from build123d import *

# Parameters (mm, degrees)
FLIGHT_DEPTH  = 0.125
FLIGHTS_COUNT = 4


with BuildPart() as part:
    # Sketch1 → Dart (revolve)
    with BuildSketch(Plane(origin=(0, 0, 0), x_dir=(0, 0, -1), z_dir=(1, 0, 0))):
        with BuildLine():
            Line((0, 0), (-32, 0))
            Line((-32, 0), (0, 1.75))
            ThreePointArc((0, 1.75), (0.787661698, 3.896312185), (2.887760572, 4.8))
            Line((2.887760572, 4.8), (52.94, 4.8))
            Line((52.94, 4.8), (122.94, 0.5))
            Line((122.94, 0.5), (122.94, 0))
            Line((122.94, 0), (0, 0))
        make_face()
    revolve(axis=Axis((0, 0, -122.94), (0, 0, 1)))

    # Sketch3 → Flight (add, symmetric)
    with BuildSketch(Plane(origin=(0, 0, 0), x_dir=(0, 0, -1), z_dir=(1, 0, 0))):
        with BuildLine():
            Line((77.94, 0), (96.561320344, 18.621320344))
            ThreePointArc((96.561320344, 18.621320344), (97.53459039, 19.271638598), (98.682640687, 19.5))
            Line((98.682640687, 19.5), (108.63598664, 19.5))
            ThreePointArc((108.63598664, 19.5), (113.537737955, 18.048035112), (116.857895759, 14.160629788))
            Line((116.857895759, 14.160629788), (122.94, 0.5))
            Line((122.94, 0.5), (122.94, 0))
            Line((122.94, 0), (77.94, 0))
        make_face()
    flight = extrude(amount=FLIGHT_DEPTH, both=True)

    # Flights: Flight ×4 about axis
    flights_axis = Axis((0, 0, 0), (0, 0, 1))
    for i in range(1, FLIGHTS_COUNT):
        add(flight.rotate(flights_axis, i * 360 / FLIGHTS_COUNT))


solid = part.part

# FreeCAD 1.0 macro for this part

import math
import FreeCAD as App
import Part
import Sketcher

V = App.Vector
Q = App.Units.Quantity

doc = App.newDocument("Part")
body = doc.addObject("PartDesign::Body", "Body")

# Sketch on YZ plane
sketch1 = doc.addObject("Sketcher::SketchObject", "Sketch")
body.addObject(sketch1)
sketch1.AttachmentSupport = (doc.YZ_Plane, [""])
sketch1.MapMode = "FlatFace"
sketch1.addGeometry([
    Part.LineSegment(V(1.8, 0, 0), V(0, 32, 0)),  # 0
    Part.LineSegment(V(0, 32, 0), V(0, -122.9, 0)),  # 1
    Part.LineSegment(V(0, -122.9, 0), V(0.5, -122.9, 0)),  # 2
    Part.LineSegment(V(0.5, -122.9, 0), V(4.8, -52.9, 0)),  # 3
    Part.LineSegment(V(4.8, -52.9, 0), V(4.8, -2.9, 0)),  # 4
    Part.ArcOfCircle(Part.Circle(V(1.9, -2.9, 0), V(0, 0, 1), 2.9), math.radians(0), math.radians(93)),  # 5
], False)
sketch1.addConstraint([
    Sketcher.Constraint("Coincident", 0, 2, 1, 1),
    Sketcher.Constraint("Coincident", 1, 2, 2, 1),
    Sketcher.Constraint("Coincident", 2, 2, 3, 1),
    Sketcher.Constraint("Coincident", 3, 2, 4, 1),
    Sketcher.Constraint("Tangent", 4, 2, 5, 1),
    Sketcher.Constraint("Coincident", 5, 2, 0, 1),
    Sketcher.Constraint("Vertical", 1),
    Sketcher.Constraint("Horizontal", 2),
    Sketcher.Constraint("Vertical", 4),
    Sketcher.Constraint("PointOnObject", 0, 2, -2),
    Sketcher.Constraint("PointOnObject", 5, 2, -1),
    Sketcher.Constraint("DistanceX", 2, 1, 2, 2, Q("0.5 mm")),
    Sketcher.Constraint("DistanceY", -1, 1, 0, 2, Q("32 mm")),
    Sketcher.Constraint("DistanceY", 2, 2, 3, 2, Q("70 mm")),
    Sketcher.Constraint("DistanceY", 1, 2, 1, 1, Q("154.94 mm")),
    Sketcher.Constraint("DistanceX", -1, 1, 3, 2, Q("4.8 mm")),
    Sketcher.Constraint("DistanceX", -1, 1, 5, 2, Q("1.75 mm")),
    Sketcher.Constraint("Radius", 5, Q("2.892076 mm")),
])
revolution = doc.addObject("PartDesign::Revolution", "Revolution")
body.addObject(revolution)
revolution.Profile = sketch1
revolution.ReferenceAxis = (sketch1, ["V_Axis"])
revolution.Angle = 360

# Sketch on YZ plane
sketch2 = doc.addObject("Sketcher::SketchObject", "Sketch001")
body.addObject(sketch2)
sketch2.AttachmentSupport = (doc.YZ_Plane, [""])
sketch2.MapMode = "FlatFace"
sketch2.addGeometry([
    Part.LineSegment(V(18.6, -96.6, 0), V(0, -77.9, 0)),  # 0
    Part.LineSegment(V(0, -77.9, 0), V(0, -122.9, 0)),  # 1
    Part.LineSegment(V(0, -122.9, 0), V(0.5, -122.9, 0)),  # 2
    Part.LineSegment(V(0.5, -122.9, 0), V(14.2, -116.9, 0)),  # 3
    Part.ArcOfCircle(Part.Circle(V(10.5, -108.6, 0), V(0, 0, 1), 9), math.radians(-66), math.radians(0)),  # 4
    Part.LineSegment(V(19.5, -108.6, 0), V(19.5, -98.7, 0)),  # 5
    Part.ArcOfCircle(Part.Circle(V(16.5, -98.7, 0), V(0, 0, 1), 3), math.radians(0), math.radians(45)),  # 6
], False)
sketch2.addConstraint([
    Sketcher.Constraint("Coincident", 0, 2, 1, 1),
    Sketcher.Constraint("Coincident", 1, 2, 2, 1),
    Sketcher.Constraint("Coincident", 2, 2, 3, 1),
    Sketcher.Constraint("Tangent", 3, 2, 4, 1),
    Sketcher.Constraint("Tangent", 4, 2, 5, 1),
    Sketcher.Constraint("Tangent", 5, 2, 6, 1),
    Sketcher.Constraint("Tangent", 6, 2, 0, 1),
    Sketcher.Constraint("Vertical", 1),
    Sketcher.Constraint("Horizontal", 2),
    Sketcher.Constraint("Vertical", 5),
    Sketcher.Constraint("PointOnObject", 0, 2, -2),
    Sketcher.Constraint("Radius", 4, Q("9 mm")),
    Sketcher.Constraint("Radius", 6, Q("3 mm")),
    Sketcher.Constraint("DistanceY", 1, 2, 1, 1, Q("45 mm")),
    Sketcher.Constraint("Angle", 0, Q("135 deg")),
    Sketcher.Constraint("Angle", 3, Q("24 deg")),
    Sketcher.Constraint("DistanceX", 2, 1, 2, 2, Q("0.5 mm")),
    Sketcher.Constraint("DistanceX", 2, 2, 4, 3, Q("10 mm")),
    Sketcher.Constraint("DistanceY", 0, 2, -1, 1, Q("77.94 mm")),
])
pad1 = doc.addObject("PartDesign::Pad", "Pad")
body.addObject(pad1)
pad1.Profile = sketch2
pad1.Length = 0.25
pad1.Midplane = True
doc.recompute()

polarpattern = doc.addObject("PartDesign::PolarPattern", "PolarPattern")
body.addObject(polarpattern)
polarpattern.Originals = [pad1]
polarpattern.Axis = (doc.Z_Axis, [""])
polarpattern.Angle = 360
polarpattern.Occurrences = 4
body.Tip = polarpattern

doc.recompute()
